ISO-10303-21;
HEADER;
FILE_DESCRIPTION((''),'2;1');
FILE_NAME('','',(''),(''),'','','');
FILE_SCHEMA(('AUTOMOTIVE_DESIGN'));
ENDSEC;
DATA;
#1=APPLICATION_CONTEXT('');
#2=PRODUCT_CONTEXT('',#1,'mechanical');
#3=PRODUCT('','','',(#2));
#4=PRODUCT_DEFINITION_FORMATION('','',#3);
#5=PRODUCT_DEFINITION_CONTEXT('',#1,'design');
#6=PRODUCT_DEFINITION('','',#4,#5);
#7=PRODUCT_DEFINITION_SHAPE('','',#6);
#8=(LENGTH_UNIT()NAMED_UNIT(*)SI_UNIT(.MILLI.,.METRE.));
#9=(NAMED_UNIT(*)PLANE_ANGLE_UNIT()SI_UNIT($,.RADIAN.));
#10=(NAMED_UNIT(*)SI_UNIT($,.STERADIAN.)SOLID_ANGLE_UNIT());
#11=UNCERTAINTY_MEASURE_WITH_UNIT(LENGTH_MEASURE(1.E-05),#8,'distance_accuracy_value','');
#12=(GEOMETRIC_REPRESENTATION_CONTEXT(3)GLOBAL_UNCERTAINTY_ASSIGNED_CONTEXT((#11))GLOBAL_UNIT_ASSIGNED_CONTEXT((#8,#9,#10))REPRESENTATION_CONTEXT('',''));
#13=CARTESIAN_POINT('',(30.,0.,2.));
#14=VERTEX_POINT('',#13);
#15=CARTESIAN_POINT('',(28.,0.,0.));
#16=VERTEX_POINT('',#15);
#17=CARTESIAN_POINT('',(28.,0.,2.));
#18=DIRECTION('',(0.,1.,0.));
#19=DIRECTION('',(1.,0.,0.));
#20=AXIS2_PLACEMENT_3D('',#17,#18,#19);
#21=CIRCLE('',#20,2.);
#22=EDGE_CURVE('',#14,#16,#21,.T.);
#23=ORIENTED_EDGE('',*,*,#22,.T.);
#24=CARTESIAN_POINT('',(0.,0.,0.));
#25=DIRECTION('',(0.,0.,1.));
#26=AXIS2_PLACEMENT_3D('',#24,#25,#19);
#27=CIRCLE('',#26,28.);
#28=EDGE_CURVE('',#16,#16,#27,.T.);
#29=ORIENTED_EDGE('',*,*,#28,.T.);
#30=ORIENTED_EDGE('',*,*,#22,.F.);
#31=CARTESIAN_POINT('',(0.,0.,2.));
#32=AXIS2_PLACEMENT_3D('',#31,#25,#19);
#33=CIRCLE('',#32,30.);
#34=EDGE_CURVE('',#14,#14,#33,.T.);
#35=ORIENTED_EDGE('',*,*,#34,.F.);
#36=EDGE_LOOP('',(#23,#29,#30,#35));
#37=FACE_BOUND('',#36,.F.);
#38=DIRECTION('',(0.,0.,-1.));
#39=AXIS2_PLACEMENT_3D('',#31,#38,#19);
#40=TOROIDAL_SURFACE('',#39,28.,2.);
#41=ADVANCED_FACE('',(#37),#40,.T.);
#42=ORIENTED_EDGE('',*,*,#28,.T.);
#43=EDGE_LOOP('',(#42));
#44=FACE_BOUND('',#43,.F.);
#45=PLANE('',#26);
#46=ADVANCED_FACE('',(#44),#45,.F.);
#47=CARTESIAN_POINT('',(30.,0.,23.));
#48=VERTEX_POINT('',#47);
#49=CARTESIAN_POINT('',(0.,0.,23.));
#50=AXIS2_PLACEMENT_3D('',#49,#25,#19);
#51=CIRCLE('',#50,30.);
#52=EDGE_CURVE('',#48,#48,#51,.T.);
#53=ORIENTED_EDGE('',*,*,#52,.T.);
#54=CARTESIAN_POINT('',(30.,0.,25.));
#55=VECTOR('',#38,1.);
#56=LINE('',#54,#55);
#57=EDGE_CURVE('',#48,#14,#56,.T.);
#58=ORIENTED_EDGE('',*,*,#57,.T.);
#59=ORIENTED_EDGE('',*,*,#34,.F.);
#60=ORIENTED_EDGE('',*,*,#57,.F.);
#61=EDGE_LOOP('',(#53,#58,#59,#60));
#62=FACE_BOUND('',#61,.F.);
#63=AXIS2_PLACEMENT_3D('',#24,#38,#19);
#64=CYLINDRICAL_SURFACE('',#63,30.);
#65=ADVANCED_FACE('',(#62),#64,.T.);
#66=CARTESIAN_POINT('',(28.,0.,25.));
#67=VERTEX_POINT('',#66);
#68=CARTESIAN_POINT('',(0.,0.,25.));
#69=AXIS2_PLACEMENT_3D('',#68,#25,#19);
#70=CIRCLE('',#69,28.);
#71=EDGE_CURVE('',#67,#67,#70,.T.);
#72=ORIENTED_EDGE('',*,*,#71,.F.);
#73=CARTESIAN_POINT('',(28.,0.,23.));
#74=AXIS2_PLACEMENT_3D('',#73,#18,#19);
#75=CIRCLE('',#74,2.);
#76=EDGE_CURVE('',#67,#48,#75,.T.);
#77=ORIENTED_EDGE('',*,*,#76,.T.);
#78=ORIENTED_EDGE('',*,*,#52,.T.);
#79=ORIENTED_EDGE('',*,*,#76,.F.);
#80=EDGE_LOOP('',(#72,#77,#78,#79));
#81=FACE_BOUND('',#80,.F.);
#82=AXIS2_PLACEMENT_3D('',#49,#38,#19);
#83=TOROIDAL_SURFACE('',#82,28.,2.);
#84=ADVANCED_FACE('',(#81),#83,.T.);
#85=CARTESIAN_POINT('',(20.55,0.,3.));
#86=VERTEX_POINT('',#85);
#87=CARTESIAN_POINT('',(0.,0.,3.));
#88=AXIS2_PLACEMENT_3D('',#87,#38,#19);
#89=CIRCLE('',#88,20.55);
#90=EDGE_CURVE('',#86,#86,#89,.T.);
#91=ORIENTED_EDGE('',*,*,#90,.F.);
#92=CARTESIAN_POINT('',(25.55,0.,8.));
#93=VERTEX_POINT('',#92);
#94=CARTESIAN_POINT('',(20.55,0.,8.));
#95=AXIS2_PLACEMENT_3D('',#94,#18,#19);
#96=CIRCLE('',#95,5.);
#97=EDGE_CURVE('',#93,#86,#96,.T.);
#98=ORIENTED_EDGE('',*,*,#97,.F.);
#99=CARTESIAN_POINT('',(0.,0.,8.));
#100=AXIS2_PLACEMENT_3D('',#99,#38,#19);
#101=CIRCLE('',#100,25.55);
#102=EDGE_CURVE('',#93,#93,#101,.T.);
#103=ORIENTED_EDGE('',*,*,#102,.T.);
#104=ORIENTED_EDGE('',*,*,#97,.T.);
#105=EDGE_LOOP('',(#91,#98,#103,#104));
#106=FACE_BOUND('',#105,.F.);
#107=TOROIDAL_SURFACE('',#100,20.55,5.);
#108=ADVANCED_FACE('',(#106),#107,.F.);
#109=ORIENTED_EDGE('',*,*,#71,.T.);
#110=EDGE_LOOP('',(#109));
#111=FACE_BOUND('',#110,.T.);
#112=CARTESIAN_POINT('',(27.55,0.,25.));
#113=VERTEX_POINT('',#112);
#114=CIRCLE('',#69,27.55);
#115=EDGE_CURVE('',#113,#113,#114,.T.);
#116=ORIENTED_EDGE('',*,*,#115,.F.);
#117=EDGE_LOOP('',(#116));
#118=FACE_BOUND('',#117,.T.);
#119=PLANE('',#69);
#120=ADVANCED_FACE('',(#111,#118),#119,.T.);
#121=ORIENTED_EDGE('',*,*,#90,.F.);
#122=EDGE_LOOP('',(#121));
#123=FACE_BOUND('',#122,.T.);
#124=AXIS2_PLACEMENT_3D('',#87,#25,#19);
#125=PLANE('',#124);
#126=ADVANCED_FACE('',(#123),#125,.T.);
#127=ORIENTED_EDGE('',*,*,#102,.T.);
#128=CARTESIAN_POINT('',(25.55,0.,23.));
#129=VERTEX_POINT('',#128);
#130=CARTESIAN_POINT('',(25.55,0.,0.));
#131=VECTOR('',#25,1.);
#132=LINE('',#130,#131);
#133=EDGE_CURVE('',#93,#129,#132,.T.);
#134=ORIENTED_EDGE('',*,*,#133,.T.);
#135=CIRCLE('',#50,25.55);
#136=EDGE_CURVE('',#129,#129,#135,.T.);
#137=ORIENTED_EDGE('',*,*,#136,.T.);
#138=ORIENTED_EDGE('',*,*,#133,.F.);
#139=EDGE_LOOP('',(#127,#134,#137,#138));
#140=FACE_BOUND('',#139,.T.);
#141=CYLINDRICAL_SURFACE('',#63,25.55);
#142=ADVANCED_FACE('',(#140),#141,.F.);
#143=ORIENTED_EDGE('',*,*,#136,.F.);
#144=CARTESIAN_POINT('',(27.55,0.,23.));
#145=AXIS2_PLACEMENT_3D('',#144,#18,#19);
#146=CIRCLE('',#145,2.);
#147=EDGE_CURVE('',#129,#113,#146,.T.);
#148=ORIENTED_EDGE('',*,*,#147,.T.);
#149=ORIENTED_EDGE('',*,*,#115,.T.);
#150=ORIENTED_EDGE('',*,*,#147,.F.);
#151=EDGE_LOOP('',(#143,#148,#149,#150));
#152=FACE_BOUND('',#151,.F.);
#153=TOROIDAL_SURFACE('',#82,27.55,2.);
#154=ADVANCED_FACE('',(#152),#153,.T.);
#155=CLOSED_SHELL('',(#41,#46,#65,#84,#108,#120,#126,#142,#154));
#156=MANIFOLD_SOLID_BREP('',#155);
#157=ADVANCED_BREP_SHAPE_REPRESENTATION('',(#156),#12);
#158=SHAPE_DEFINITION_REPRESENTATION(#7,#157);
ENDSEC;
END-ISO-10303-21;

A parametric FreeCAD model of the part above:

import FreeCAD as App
import Part
import Sketcher
from FreeCAD import Vector
Q = App.Units.Quantity


def edges_at(feature, points):
    """Names of the edges that pass closest to the given points."""
    edges = feature.Shape.Edges
    near = lambda p: min(range(len(edges)), key=lambda i: edges[i].distToShape(Part.Vertex(*p))[0])
    return sorted({f"Edge{near(p) + 1}" for p in points})

doc = App.newDocument("Part")
body = doc.addObject("PartDesign::Body", "Body")

sketch1 = body.newObject("Sketcher::SketchObject", "Sketch")
sketch1.AttachmentSupport = (doc.getObject("XY_Plane"), [""])
sketch1.MapMode = "FlatFace"
sketch1.addGeometry(Part.Circle(Vector(0, 0, 0), Vector(0, 0, 1), 30), False)
sketch1.addConstraint([
    Sketcher.Constraint("Coincident", 0, 3, -1, 1),
    Sketcher.Constraint("Diameter", 0, Q("60 mm")),
])
pad1 = body.newObject("PartDesign::Pad", "Pad")
pad1.Profile = sketch1
pad1.Length = 3

sketch2 = body.newObject("Sketcher::SketchObject", "Sketch001")
sketch2.AttachmentSupport = (doc.getObject("XY_Plane"), [""])
sketch2.MapMode = "FlatFace"
sketch2.addGeometry([
    Part.Circle(Vector(0, 0, 0), Vector(0, 0, 1), 30),
    Part.Circle(Vector(0, 0, 0), Vector(0, 0, 1), 25.55),
], False)
sketch2.addConstraint([
    Sketcher.Constraint("Coincident", 0, 3, -1, 1),
    Sketcher.Constraint("Coincident", 1, 3, -1, 1),
    Sketcher.Constraint("Diameter", 0, Q("60 mm")),
    Sketcher.Constraint("Diameter", 1, Q("51.1 mm")),
])
pad2 = body.newObject("PartDesign::Pad", "Pad001")
pad2.Profile = sketch2
pad2.Length = 25
doc.recompute()

fillet = body.newObject("PartDesign::Fillet", "Fillet")
fillet.Base = (pad2, edges_at(pad2, [(-25.55, 0, 3)]))
fillet.Radius = 5
doc.recompute()

fillet2 = body.newObject("PartDesign::Fillet", "Fillet001")
fillet2.Base = (fillet, edges_at(fillet, [(-25.55, 0, 25), (-30, 0, 25)]))
fillet2.Radius = 2

sketch3 = body.newObject("Sketcher::SketchObject", "Sketch002")
sketch3.AttachmentSupport = (doc.getObject("XY_Plane"), [""])
sketch3.MapMode = "FlatFace"
sketch3.addGeometry([
    Part.Circle(Vector(0, 0, 0), Vector(0, 0, 1), 40),
    Part.Circle(Vector(0, 0, 0), Vector(0, 0, 1), 30.5),
], False)
sketch3.addConstraint([
    Sketcher.Constraint("Coincident", 0, 3, -1, 1),
    Sketcher.Constraint("Coincident", 1, 3, -1, 1),
    Sketcher.Constraint("Diameter", 0, Q("80 mm")),
    Sketcher.Constraint("Diameter", 1, Q("61 mm")),
])
pocket1 = body.newObject("PartDesign::Pocket", "Pocket")
pocket1.Profile = sketch3
pocket1.Length = 27.3
pocket1.Reversed = True
doc.recompute()

fillet3 = body.newObject("PartDesign::Fillet", "Fillet002")
fillet3.Base = (pocket1, edges_at(pocket1, [(-30, 0, 0)]))
fillet3.Radius = 2

doc.recompute()
